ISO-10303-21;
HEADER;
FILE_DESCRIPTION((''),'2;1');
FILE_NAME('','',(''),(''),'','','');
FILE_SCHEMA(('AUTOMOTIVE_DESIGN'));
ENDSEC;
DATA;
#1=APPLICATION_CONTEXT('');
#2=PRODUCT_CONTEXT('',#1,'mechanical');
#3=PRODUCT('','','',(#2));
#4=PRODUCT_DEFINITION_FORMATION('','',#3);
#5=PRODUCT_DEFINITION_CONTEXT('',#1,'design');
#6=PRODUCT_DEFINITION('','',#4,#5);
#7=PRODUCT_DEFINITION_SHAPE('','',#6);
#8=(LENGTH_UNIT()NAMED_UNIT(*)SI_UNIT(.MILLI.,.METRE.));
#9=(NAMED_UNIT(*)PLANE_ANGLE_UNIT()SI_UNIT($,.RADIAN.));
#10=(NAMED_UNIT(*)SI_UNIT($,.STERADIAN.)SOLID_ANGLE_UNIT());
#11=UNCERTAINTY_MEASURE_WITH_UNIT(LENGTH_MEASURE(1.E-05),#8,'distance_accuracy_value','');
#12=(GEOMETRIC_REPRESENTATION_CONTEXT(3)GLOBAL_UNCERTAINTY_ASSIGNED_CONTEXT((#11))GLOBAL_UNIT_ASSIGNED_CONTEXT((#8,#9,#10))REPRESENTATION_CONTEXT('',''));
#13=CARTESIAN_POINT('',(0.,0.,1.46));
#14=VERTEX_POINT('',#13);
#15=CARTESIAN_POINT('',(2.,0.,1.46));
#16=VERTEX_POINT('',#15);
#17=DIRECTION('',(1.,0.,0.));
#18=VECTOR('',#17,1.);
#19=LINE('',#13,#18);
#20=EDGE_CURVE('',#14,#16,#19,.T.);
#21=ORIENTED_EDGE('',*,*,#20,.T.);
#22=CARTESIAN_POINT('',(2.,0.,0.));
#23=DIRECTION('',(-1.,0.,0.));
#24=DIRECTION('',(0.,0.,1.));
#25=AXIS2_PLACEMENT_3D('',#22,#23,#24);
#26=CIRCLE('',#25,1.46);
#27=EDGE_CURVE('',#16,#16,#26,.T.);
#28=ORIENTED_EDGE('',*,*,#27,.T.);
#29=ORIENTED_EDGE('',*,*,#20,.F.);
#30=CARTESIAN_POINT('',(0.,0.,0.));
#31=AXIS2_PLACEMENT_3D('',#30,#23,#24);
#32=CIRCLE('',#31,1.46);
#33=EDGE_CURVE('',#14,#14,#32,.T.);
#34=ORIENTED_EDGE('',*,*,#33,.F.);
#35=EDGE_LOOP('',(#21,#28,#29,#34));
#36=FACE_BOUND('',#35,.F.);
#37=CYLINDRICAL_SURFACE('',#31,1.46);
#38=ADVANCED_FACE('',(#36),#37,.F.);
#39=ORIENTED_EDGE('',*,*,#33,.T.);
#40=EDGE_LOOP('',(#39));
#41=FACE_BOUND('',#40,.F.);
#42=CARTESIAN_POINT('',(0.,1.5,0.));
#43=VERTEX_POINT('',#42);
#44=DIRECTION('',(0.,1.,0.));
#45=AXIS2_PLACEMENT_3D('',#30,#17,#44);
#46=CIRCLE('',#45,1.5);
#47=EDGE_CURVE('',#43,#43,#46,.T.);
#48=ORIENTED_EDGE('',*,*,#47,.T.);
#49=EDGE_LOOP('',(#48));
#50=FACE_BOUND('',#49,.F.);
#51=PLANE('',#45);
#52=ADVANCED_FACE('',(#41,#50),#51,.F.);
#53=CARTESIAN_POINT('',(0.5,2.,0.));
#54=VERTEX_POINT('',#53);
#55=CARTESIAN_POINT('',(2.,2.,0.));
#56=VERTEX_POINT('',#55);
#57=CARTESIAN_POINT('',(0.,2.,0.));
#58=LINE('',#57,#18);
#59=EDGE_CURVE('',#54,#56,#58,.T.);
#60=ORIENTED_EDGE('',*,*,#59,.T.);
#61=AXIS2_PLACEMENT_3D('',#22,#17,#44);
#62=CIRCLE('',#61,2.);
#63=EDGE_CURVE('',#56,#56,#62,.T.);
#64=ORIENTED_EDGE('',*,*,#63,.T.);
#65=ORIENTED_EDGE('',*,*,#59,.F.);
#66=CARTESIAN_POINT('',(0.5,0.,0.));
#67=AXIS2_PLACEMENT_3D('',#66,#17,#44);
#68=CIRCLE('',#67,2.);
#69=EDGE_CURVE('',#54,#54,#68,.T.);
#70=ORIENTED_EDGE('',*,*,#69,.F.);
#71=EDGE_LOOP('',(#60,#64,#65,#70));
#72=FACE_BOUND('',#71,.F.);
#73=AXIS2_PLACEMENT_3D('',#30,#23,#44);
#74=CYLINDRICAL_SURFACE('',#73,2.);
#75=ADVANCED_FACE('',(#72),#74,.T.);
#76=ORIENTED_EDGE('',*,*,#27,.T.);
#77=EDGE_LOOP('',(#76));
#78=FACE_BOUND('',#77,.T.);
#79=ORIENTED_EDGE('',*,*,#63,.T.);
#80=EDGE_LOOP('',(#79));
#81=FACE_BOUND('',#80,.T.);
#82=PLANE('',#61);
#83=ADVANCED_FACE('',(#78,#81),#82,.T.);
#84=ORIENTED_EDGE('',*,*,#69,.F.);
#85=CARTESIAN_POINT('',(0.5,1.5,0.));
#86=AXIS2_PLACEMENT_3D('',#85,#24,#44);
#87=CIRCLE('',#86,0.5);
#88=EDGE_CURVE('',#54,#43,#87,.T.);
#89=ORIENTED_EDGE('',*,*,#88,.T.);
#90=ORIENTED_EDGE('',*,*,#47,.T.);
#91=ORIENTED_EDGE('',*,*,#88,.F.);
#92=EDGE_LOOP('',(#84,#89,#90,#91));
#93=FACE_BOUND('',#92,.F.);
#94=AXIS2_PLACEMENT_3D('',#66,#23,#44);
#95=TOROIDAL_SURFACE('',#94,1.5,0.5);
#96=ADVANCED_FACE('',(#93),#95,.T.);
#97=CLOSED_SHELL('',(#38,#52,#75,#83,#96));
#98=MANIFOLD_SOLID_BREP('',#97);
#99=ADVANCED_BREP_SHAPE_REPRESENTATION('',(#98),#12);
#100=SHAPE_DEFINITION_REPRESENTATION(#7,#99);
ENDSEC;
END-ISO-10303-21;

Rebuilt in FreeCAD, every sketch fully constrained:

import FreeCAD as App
import Part
import Sketcher
Q = App.Units.Quantity


def edges_at(feature, points):
    """Names of the edges that pass closest to the given points."""
    edges = feature.Shape.Edges
    near = lambda p: min(range(len(edges)), key=lambda i: edges[i].distToShape(Part.Vertex(*p))[0])
    return sorted({f"Edge{near(p) + 1}" for p in points})

doc = App.newDocument("Part")
body = doc.addObject("PartDesign::Body", "Body")

# Sketch on YZ plane
sketch1 = body.newObject("Sketcher::SketchObject", "Sketch")
sketch1.AttachmentSupport = (doc.getObject("YZ_Plane"), [""])
sketch1.MapMode = "FlatFace"
sketch1.addGeometry(Part.Circle(App.Vector(0, 0, 0), App.Vector(0, 0, 1), 2), False)
sketch1.addConstraint(Sketcher.Constraint("Coincident", 0, 3, -1, 1))
sketch1.addConstraint(Sketcher.Constraint("Diameter", 0, Q("4 mm")))
pad1 = body.newObject("PartDesign::Pad", "Pad")
pad1.Profile = sketch1
pad1.Length = 2

# Sketch on YZ plane
sketch2 = body.newObject("Sketcher::SketchObject", "Sketch001")
sketch2.AttachmentSupport = (doc.getObject("YZ_Plane"), [""])
sketch2.MapMode = "FlatFace"
sketch2.addGeometry(Part.Circle(App.Vector(0, 0, 0), App.Vector(0, 0, 1), 1.5), False)
sketch2.addConstraint(Sketcher.Constraint("Coincident", 0, 3, -1, 1))
sketch2.addConstraint(Sketcher.Constraint("Diameter", 0, Q("2.92 mm")))
pocket1 = body.newObject("PartDesign::Pocket", "Pocket")
pocket1.Profile = sketch2
pocket1.Length = 3.5
pocket1.Reversed = True
doc.recompute()

fillet = body.newObject("PartDesign::Fillet", "Fillet")
fillet.Base = (pocket1, edges_at(pocket1, [(0, -2, 0)]))
fillet.Radius = 0.5

doc.recompute()
